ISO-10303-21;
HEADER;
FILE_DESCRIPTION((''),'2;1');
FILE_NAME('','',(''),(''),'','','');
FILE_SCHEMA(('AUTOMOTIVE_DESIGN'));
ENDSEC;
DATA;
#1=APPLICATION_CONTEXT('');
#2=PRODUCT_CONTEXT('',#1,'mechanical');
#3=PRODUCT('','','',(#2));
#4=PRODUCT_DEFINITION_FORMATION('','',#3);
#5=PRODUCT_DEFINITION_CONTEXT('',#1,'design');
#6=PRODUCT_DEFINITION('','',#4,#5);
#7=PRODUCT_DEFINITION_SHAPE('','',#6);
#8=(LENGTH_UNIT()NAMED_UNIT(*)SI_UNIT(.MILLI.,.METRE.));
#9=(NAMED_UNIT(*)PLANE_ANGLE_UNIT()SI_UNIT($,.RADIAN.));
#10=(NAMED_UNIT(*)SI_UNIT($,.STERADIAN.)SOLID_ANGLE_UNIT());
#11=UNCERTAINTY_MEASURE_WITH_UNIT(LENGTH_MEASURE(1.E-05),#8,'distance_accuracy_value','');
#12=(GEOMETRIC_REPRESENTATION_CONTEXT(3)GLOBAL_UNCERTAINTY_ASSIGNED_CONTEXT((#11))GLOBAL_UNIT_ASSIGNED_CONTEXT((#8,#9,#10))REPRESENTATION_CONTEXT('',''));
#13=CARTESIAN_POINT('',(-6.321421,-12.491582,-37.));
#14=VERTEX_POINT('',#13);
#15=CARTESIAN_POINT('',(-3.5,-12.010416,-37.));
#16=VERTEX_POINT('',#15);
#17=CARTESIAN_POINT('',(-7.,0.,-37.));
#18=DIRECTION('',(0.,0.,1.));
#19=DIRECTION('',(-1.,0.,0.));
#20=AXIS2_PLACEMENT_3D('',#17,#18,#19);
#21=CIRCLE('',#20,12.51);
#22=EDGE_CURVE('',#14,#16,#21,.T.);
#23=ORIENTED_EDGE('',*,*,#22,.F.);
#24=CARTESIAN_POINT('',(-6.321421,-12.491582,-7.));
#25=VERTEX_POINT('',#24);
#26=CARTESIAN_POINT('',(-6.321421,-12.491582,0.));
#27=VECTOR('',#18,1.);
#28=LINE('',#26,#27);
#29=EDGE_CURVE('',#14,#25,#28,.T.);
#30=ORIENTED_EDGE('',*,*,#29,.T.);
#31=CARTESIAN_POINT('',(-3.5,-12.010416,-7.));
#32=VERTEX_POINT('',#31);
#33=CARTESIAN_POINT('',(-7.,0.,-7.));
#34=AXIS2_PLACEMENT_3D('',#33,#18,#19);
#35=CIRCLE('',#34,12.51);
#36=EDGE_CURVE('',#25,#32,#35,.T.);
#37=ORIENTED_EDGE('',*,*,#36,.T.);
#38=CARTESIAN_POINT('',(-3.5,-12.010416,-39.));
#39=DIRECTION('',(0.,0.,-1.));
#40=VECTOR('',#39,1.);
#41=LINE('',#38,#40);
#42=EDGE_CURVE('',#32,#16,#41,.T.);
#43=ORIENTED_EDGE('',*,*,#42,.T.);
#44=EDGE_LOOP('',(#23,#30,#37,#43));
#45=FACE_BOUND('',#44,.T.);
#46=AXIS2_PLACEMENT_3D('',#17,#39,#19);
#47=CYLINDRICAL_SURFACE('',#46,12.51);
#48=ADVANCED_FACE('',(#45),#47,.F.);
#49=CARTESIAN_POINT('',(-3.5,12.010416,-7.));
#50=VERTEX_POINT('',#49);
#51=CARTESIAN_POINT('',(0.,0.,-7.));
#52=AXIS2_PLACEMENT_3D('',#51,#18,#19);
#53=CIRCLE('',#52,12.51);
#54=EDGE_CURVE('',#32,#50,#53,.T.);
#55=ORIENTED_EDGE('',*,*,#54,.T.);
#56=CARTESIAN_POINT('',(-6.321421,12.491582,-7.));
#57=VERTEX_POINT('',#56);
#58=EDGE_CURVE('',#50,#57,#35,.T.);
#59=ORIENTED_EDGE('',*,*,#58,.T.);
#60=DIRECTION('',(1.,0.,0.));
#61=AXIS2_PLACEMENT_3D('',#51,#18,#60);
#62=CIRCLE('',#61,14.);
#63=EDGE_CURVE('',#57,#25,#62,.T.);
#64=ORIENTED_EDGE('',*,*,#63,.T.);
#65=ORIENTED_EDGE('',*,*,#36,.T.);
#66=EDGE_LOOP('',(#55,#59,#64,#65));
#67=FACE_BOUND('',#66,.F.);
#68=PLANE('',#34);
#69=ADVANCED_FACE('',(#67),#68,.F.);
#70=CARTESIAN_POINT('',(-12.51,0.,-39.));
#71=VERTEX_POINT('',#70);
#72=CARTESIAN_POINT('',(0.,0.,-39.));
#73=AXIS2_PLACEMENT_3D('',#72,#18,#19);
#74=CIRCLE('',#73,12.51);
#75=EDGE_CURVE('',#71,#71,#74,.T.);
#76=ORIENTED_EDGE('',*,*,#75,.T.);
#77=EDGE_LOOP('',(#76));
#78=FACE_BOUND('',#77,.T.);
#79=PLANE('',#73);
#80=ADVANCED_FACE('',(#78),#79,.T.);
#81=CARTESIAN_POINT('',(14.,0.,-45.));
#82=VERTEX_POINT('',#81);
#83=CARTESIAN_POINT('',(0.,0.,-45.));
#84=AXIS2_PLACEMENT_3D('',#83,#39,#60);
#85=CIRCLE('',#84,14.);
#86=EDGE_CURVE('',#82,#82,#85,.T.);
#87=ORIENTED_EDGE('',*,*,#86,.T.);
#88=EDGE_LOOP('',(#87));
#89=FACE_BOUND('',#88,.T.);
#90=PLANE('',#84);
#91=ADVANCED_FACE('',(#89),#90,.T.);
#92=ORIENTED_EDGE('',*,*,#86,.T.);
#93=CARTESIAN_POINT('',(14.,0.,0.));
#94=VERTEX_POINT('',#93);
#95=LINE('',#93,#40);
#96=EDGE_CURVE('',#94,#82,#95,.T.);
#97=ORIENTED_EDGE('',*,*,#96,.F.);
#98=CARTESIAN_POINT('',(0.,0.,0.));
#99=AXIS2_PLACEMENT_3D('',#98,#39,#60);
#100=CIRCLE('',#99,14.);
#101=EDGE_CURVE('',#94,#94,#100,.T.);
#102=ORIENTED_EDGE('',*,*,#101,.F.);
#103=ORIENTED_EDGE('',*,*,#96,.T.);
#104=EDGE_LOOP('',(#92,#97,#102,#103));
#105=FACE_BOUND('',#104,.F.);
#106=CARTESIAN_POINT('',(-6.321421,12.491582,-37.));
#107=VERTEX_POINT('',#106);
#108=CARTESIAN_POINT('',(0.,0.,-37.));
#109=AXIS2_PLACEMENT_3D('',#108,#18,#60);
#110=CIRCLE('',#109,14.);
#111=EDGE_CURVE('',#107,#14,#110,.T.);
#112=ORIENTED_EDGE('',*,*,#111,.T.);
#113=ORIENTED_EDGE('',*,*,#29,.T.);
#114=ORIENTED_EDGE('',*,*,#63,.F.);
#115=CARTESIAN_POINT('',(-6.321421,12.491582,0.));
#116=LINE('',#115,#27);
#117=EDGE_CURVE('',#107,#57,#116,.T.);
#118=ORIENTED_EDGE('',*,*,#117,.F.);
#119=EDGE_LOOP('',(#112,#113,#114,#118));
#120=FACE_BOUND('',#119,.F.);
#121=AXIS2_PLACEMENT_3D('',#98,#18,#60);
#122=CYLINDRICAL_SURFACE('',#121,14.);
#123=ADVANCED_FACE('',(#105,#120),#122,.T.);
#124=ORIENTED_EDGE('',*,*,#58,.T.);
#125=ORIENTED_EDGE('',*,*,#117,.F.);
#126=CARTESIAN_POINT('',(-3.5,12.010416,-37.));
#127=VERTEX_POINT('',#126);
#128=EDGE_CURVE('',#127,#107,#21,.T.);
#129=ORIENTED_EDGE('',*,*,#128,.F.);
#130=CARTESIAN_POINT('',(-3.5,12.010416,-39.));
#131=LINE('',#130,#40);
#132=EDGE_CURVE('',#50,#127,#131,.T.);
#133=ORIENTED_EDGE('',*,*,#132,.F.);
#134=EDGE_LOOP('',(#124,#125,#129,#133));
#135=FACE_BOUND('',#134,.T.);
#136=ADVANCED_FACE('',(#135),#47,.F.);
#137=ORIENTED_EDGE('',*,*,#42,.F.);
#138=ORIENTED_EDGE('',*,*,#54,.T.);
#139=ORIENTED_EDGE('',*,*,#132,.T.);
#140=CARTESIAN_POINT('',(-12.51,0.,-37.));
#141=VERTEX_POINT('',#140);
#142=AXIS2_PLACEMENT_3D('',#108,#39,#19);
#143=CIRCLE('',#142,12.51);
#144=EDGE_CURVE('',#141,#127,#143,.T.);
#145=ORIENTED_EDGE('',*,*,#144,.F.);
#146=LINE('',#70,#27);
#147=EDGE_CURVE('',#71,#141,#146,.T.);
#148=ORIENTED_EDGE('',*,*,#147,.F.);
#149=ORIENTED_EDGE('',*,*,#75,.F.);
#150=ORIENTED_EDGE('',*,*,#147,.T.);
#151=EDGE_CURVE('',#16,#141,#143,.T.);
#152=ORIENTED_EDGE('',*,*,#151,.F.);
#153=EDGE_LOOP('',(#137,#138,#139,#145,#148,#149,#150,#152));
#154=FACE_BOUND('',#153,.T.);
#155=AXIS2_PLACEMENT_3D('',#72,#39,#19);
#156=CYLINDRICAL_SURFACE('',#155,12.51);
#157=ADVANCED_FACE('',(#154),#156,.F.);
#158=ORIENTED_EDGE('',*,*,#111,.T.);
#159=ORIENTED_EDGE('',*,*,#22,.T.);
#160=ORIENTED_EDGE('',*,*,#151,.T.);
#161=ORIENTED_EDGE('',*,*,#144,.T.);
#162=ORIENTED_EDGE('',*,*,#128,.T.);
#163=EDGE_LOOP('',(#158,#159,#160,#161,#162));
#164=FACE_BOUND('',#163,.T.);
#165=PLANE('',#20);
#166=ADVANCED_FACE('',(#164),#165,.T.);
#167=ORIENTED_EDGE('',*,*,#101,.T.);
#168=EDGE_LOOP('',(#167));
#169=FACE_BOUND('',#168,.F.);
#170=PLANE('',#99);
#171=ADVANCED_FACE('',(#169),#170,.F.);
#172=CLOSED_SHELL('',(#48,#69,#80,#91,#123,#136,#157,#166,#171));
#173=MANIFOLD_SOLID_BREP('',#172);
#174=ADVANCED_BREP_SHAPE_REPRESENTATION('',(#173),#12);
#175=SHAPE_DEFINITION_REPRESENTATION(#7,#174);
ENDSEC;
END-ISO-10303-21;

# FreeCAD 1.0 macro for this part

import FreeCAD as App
import Part
import Sketcher
from FreeCAD import Vector

doc = App.newDocument("Part")
body = doc.addObject("PartDesign::Body", "Body")

sketch1 = doc.addObject("Sketcher::SketchObject", "Sketch")
body.addObject(sketch1)
sketch1.AttachmentSupport = (doc.XY_Plane, [""])
sketch1.MapMode = "FlatFace"
sketch1.AttachmentOffset = App.Placement(Vector(0, 0, -37), App.Rotation())
sketch1.addGeometry(Part.Circle(Vector(-7, 0, 0), Vector(0, 0, 1), 13), False)
sketch1.addConstraint([
    Sketcher.Constraint("PointOnObject", 0, 3, -1),
    Sketcher.Constraint("Diameter", 0, 25.02),
    Sketcher.Constraint("DistanceX", 0, 3, -1, 1, 7.0),
])
pad1 = doc.addObject("PartDesign::Pad", "Pad")
body.addObject(pad1)
pad1.Profile = sketch1
pad1.Length = 30
body2 = doc.addObject("PartDesign::Body", "Body001")

sketch2 = doc.addObject("Sketcher::SketchObject", "Sketch001")
body2.addObject(sketch2)
sketch2.AttachmentSupport = (doc.getObject("XY_Plane001"), [""])
sketch2.MapMode = "FlatFace"
sketch2.AttachmentOffset = App.Placement(Vector(0, 0, -39), App.Rotation())
sketch2.addGeometry(Part.Circle(Vector(0, 0, 0), Vector(0, 0, 1), 13), False)
sketch2.addConstraint([
    Sketcher.Constraint("Coincident", 0, 3, -1, 1),
    Sketcher.Constraint("Diameter", 0, 25.02),
])
pad2 = doc.addObject("PartDesign::Pad", "Pad001")
body2.addObject(pad2)
pad2.Profile = sketch2
pad2.Length = 32
body3 = doc.addObject("PartDesign::Body", "Body002")

sketch3 = doc.addObject("Sketcher::SketchObject", "Sketch002")
body3.addObject(sketch3)
sketch3.AttachmentSupport = (doc.getObject("XY_Plane002"), [""])
sketch3.MapMode = "FlatFace"
sketch3.addGeometry(Part.Circle(Vector(0, 0, 0), Vector(0, 0, 1), 14), False)
sketch3.addConstraint([
    Sketcher.Constraint("Coincident", 0, 3, -1, 1),
    Sketcher.Constraint("Diameter", 0, 28.0),
])
pad3 = doc.addObject("PartDesign::Pad", "Pad002")
body3.addObject(pad3)
pad3.Profile = sketch3
pad3.Length = 45
pad3.Reversed = True
doc.recompute()

boolean = doc.addObject("PartDesign::Boolean", "Boolean")
body3.addObject(boolean)
boolean.Type = "Cut"
boolean.addObjects([body2])
doc.recompute()

boolean2 = doc.addObject("PartDesign::Boolean", "Boolean001")
body3.addObject(boolean2)
boolean2.Type = "Cut"
boolean2.addObjects([body])

doc.recompute()
